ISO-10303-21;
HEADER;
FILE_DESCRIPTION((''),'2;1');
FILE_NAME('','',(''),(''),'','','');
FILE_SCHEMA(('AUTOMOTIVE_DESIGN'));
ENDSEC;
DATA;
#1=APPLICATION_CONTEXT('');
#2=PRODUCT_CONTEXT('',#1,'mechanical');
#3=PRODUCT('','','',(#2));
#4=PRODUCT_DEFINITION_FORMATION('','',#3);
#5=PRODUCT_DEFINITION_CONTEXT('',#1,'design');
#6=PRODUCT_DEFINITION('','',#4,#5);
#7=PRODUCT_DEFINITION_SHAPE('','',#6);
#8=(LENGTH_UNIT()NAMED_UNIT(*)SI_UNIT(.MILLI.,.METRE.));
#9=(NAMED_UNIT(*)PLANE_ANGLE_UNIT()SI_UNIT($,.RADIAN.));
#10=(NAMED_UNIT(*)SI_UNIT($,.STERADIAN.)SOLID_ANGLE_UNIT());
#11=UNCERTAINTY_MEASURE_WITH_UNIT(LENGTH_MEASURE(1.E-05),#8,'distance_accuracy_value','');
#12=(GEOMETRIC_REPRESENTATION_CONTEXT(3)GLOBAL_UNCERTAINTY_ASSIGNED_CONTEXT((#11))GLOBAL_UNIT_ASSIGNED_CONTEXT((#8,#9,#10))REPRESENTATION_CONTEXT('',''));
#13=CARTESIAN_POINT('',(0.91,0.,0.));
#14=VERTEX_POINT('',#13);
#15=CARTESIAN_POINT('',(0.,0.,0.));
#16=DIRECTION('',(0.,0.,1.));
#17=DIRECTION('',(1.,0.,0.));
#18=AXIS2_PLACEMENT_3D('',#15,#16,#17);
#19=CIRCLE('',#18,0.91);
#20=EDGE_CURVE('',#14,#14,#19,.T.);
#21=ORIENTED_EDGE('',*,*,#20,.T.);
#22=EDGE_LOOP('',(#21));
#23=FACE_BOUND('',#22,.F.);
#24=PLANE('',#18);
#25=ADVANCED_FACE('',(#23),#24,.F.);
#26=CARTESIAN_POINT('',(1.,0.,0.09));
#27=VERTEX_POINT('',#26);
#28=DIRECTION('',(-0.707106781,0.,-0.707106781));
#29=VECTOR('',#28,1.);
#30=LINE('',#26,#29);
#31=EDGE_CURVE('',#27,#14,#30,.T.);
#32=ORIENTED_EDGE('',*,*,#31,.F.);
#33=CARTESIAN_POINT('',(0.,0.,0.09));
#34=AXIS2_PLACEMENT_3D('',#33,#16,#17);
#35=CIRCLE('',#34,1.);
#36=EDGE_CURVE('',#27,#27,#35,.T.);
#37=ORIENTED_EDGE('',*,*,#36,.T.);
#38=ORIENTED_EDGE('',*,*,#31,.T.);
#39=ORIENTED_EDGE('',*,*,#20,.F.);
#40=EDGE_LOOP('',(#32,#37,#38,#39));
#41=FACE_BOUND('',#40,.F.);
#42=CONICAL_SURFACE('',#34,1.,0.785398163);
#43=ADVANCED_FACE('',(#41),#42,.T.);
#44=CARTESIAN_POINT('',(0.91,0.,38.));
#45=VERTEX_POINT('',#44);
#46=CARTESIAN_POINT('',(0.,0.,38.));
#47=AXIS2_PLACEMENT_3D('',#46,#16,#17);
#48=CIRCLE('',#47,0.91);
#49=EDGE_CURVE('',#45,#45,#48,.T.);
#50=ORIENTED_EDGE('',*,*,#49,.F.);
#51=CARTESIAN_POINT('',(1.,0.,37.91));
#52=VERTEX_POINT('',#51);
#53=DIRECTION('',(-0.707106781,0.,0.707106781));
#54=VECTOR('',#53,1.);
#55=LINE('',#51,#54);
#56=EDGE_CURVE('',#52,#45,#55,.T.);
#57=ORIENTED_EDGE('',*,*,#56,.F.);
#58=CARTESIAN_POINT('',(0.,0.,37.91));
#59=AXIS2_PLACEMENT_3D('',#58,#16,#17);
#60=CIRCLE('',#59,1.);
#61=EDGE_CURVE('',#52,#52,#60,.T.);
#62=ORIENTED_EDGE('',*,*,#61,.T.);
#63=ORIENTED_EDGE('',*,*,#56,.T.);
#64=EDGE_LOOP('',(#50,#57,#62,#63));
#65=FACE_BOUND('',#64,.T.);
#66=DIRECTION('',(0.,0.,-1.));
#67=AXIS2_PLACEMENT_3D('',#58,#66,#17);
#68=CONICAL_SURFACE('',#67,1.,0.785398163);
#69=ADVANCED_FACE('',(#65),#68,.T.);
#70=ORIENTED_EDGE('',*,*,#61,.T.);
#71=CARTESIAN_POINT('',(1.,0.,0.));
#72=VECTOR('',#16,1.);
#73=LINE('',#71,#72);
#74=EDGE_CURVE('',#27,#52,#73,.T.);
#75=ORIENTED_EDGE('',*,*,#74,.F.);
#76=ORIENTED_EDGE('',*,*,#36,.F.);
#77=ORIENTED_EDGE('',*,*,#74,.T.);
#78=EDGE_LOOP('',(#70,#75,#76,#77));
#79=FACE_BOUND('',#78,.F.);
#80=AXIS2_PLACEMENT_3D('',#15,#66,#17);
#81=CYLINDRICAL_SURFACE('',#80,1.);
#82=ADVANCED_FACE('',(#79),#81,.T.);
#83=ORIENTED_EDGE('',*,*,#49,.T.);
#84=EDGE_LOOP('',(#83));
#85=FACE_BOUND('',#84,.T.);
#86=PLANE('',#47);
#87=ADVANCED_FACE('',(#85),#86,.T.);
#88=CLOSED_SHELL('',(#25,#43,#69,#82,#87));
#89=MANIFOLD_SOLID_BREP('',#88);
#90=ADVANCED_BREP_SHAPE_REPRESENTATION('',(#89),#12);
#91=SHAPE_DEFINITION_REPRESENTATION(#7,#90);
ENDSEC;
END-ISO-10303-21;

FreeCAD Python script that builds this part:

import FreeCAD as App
import Part
import Sketcher


def edges_at(feature, points):
    """Names of the edges that pass closest to the given points."""
    edges = feature.Shape.Edges
    near = lambda p: min(range(len(edges)), key=lambda i: edges[i].distToShape(Part.Vertex(*p))[0])
    return sorted({f"Edge{near(p) + 1}" for p in points})

doc = App.newDocument("Part")
body = doc.addObject("PartDesign::Body", "Body")

# Sketch on XY plane
sketch1 = body.newObject("Sketcher::SketchObject", "Sketch")
sketch1.AttachmentSupport = (doc.getObject("XY_Plane"), [""])
sketch1.MapMode = "FlatFace"
sketch1.addGeometry(Part.Circle(App.Vector(0, 0, 0), App.Vector(0, 0, 1), 1), False)
sketch1.addConstraint([
    Sketcher.Constraint("Coincident", 0, 3, -1, 1),
    Sketcher.Constraint("Diameter", 0, 2.0),
])
pad1 = body.newObject("PartDesign::Pad", "Pad")
pad1.Profile = sketch1
pad1.Length = 38
doc.recompute()

chamfer = body.newObject("PartDesign::Chamfer", "Chamfer")
chamfer.Base = (pad1, edges_at(pad1, [(-1, 0, 0)]))
chamfer.Size = 0.09
doc.recompute()

chamfer2 = body.newObject("PartDesign::Chamfer", "Chamfer001")
chamfer2.Base = (chamfer, edges_at(chamfer, [(-1, 0, 38)]))
chamfer2.Size = 0.09

doc.recompute()
